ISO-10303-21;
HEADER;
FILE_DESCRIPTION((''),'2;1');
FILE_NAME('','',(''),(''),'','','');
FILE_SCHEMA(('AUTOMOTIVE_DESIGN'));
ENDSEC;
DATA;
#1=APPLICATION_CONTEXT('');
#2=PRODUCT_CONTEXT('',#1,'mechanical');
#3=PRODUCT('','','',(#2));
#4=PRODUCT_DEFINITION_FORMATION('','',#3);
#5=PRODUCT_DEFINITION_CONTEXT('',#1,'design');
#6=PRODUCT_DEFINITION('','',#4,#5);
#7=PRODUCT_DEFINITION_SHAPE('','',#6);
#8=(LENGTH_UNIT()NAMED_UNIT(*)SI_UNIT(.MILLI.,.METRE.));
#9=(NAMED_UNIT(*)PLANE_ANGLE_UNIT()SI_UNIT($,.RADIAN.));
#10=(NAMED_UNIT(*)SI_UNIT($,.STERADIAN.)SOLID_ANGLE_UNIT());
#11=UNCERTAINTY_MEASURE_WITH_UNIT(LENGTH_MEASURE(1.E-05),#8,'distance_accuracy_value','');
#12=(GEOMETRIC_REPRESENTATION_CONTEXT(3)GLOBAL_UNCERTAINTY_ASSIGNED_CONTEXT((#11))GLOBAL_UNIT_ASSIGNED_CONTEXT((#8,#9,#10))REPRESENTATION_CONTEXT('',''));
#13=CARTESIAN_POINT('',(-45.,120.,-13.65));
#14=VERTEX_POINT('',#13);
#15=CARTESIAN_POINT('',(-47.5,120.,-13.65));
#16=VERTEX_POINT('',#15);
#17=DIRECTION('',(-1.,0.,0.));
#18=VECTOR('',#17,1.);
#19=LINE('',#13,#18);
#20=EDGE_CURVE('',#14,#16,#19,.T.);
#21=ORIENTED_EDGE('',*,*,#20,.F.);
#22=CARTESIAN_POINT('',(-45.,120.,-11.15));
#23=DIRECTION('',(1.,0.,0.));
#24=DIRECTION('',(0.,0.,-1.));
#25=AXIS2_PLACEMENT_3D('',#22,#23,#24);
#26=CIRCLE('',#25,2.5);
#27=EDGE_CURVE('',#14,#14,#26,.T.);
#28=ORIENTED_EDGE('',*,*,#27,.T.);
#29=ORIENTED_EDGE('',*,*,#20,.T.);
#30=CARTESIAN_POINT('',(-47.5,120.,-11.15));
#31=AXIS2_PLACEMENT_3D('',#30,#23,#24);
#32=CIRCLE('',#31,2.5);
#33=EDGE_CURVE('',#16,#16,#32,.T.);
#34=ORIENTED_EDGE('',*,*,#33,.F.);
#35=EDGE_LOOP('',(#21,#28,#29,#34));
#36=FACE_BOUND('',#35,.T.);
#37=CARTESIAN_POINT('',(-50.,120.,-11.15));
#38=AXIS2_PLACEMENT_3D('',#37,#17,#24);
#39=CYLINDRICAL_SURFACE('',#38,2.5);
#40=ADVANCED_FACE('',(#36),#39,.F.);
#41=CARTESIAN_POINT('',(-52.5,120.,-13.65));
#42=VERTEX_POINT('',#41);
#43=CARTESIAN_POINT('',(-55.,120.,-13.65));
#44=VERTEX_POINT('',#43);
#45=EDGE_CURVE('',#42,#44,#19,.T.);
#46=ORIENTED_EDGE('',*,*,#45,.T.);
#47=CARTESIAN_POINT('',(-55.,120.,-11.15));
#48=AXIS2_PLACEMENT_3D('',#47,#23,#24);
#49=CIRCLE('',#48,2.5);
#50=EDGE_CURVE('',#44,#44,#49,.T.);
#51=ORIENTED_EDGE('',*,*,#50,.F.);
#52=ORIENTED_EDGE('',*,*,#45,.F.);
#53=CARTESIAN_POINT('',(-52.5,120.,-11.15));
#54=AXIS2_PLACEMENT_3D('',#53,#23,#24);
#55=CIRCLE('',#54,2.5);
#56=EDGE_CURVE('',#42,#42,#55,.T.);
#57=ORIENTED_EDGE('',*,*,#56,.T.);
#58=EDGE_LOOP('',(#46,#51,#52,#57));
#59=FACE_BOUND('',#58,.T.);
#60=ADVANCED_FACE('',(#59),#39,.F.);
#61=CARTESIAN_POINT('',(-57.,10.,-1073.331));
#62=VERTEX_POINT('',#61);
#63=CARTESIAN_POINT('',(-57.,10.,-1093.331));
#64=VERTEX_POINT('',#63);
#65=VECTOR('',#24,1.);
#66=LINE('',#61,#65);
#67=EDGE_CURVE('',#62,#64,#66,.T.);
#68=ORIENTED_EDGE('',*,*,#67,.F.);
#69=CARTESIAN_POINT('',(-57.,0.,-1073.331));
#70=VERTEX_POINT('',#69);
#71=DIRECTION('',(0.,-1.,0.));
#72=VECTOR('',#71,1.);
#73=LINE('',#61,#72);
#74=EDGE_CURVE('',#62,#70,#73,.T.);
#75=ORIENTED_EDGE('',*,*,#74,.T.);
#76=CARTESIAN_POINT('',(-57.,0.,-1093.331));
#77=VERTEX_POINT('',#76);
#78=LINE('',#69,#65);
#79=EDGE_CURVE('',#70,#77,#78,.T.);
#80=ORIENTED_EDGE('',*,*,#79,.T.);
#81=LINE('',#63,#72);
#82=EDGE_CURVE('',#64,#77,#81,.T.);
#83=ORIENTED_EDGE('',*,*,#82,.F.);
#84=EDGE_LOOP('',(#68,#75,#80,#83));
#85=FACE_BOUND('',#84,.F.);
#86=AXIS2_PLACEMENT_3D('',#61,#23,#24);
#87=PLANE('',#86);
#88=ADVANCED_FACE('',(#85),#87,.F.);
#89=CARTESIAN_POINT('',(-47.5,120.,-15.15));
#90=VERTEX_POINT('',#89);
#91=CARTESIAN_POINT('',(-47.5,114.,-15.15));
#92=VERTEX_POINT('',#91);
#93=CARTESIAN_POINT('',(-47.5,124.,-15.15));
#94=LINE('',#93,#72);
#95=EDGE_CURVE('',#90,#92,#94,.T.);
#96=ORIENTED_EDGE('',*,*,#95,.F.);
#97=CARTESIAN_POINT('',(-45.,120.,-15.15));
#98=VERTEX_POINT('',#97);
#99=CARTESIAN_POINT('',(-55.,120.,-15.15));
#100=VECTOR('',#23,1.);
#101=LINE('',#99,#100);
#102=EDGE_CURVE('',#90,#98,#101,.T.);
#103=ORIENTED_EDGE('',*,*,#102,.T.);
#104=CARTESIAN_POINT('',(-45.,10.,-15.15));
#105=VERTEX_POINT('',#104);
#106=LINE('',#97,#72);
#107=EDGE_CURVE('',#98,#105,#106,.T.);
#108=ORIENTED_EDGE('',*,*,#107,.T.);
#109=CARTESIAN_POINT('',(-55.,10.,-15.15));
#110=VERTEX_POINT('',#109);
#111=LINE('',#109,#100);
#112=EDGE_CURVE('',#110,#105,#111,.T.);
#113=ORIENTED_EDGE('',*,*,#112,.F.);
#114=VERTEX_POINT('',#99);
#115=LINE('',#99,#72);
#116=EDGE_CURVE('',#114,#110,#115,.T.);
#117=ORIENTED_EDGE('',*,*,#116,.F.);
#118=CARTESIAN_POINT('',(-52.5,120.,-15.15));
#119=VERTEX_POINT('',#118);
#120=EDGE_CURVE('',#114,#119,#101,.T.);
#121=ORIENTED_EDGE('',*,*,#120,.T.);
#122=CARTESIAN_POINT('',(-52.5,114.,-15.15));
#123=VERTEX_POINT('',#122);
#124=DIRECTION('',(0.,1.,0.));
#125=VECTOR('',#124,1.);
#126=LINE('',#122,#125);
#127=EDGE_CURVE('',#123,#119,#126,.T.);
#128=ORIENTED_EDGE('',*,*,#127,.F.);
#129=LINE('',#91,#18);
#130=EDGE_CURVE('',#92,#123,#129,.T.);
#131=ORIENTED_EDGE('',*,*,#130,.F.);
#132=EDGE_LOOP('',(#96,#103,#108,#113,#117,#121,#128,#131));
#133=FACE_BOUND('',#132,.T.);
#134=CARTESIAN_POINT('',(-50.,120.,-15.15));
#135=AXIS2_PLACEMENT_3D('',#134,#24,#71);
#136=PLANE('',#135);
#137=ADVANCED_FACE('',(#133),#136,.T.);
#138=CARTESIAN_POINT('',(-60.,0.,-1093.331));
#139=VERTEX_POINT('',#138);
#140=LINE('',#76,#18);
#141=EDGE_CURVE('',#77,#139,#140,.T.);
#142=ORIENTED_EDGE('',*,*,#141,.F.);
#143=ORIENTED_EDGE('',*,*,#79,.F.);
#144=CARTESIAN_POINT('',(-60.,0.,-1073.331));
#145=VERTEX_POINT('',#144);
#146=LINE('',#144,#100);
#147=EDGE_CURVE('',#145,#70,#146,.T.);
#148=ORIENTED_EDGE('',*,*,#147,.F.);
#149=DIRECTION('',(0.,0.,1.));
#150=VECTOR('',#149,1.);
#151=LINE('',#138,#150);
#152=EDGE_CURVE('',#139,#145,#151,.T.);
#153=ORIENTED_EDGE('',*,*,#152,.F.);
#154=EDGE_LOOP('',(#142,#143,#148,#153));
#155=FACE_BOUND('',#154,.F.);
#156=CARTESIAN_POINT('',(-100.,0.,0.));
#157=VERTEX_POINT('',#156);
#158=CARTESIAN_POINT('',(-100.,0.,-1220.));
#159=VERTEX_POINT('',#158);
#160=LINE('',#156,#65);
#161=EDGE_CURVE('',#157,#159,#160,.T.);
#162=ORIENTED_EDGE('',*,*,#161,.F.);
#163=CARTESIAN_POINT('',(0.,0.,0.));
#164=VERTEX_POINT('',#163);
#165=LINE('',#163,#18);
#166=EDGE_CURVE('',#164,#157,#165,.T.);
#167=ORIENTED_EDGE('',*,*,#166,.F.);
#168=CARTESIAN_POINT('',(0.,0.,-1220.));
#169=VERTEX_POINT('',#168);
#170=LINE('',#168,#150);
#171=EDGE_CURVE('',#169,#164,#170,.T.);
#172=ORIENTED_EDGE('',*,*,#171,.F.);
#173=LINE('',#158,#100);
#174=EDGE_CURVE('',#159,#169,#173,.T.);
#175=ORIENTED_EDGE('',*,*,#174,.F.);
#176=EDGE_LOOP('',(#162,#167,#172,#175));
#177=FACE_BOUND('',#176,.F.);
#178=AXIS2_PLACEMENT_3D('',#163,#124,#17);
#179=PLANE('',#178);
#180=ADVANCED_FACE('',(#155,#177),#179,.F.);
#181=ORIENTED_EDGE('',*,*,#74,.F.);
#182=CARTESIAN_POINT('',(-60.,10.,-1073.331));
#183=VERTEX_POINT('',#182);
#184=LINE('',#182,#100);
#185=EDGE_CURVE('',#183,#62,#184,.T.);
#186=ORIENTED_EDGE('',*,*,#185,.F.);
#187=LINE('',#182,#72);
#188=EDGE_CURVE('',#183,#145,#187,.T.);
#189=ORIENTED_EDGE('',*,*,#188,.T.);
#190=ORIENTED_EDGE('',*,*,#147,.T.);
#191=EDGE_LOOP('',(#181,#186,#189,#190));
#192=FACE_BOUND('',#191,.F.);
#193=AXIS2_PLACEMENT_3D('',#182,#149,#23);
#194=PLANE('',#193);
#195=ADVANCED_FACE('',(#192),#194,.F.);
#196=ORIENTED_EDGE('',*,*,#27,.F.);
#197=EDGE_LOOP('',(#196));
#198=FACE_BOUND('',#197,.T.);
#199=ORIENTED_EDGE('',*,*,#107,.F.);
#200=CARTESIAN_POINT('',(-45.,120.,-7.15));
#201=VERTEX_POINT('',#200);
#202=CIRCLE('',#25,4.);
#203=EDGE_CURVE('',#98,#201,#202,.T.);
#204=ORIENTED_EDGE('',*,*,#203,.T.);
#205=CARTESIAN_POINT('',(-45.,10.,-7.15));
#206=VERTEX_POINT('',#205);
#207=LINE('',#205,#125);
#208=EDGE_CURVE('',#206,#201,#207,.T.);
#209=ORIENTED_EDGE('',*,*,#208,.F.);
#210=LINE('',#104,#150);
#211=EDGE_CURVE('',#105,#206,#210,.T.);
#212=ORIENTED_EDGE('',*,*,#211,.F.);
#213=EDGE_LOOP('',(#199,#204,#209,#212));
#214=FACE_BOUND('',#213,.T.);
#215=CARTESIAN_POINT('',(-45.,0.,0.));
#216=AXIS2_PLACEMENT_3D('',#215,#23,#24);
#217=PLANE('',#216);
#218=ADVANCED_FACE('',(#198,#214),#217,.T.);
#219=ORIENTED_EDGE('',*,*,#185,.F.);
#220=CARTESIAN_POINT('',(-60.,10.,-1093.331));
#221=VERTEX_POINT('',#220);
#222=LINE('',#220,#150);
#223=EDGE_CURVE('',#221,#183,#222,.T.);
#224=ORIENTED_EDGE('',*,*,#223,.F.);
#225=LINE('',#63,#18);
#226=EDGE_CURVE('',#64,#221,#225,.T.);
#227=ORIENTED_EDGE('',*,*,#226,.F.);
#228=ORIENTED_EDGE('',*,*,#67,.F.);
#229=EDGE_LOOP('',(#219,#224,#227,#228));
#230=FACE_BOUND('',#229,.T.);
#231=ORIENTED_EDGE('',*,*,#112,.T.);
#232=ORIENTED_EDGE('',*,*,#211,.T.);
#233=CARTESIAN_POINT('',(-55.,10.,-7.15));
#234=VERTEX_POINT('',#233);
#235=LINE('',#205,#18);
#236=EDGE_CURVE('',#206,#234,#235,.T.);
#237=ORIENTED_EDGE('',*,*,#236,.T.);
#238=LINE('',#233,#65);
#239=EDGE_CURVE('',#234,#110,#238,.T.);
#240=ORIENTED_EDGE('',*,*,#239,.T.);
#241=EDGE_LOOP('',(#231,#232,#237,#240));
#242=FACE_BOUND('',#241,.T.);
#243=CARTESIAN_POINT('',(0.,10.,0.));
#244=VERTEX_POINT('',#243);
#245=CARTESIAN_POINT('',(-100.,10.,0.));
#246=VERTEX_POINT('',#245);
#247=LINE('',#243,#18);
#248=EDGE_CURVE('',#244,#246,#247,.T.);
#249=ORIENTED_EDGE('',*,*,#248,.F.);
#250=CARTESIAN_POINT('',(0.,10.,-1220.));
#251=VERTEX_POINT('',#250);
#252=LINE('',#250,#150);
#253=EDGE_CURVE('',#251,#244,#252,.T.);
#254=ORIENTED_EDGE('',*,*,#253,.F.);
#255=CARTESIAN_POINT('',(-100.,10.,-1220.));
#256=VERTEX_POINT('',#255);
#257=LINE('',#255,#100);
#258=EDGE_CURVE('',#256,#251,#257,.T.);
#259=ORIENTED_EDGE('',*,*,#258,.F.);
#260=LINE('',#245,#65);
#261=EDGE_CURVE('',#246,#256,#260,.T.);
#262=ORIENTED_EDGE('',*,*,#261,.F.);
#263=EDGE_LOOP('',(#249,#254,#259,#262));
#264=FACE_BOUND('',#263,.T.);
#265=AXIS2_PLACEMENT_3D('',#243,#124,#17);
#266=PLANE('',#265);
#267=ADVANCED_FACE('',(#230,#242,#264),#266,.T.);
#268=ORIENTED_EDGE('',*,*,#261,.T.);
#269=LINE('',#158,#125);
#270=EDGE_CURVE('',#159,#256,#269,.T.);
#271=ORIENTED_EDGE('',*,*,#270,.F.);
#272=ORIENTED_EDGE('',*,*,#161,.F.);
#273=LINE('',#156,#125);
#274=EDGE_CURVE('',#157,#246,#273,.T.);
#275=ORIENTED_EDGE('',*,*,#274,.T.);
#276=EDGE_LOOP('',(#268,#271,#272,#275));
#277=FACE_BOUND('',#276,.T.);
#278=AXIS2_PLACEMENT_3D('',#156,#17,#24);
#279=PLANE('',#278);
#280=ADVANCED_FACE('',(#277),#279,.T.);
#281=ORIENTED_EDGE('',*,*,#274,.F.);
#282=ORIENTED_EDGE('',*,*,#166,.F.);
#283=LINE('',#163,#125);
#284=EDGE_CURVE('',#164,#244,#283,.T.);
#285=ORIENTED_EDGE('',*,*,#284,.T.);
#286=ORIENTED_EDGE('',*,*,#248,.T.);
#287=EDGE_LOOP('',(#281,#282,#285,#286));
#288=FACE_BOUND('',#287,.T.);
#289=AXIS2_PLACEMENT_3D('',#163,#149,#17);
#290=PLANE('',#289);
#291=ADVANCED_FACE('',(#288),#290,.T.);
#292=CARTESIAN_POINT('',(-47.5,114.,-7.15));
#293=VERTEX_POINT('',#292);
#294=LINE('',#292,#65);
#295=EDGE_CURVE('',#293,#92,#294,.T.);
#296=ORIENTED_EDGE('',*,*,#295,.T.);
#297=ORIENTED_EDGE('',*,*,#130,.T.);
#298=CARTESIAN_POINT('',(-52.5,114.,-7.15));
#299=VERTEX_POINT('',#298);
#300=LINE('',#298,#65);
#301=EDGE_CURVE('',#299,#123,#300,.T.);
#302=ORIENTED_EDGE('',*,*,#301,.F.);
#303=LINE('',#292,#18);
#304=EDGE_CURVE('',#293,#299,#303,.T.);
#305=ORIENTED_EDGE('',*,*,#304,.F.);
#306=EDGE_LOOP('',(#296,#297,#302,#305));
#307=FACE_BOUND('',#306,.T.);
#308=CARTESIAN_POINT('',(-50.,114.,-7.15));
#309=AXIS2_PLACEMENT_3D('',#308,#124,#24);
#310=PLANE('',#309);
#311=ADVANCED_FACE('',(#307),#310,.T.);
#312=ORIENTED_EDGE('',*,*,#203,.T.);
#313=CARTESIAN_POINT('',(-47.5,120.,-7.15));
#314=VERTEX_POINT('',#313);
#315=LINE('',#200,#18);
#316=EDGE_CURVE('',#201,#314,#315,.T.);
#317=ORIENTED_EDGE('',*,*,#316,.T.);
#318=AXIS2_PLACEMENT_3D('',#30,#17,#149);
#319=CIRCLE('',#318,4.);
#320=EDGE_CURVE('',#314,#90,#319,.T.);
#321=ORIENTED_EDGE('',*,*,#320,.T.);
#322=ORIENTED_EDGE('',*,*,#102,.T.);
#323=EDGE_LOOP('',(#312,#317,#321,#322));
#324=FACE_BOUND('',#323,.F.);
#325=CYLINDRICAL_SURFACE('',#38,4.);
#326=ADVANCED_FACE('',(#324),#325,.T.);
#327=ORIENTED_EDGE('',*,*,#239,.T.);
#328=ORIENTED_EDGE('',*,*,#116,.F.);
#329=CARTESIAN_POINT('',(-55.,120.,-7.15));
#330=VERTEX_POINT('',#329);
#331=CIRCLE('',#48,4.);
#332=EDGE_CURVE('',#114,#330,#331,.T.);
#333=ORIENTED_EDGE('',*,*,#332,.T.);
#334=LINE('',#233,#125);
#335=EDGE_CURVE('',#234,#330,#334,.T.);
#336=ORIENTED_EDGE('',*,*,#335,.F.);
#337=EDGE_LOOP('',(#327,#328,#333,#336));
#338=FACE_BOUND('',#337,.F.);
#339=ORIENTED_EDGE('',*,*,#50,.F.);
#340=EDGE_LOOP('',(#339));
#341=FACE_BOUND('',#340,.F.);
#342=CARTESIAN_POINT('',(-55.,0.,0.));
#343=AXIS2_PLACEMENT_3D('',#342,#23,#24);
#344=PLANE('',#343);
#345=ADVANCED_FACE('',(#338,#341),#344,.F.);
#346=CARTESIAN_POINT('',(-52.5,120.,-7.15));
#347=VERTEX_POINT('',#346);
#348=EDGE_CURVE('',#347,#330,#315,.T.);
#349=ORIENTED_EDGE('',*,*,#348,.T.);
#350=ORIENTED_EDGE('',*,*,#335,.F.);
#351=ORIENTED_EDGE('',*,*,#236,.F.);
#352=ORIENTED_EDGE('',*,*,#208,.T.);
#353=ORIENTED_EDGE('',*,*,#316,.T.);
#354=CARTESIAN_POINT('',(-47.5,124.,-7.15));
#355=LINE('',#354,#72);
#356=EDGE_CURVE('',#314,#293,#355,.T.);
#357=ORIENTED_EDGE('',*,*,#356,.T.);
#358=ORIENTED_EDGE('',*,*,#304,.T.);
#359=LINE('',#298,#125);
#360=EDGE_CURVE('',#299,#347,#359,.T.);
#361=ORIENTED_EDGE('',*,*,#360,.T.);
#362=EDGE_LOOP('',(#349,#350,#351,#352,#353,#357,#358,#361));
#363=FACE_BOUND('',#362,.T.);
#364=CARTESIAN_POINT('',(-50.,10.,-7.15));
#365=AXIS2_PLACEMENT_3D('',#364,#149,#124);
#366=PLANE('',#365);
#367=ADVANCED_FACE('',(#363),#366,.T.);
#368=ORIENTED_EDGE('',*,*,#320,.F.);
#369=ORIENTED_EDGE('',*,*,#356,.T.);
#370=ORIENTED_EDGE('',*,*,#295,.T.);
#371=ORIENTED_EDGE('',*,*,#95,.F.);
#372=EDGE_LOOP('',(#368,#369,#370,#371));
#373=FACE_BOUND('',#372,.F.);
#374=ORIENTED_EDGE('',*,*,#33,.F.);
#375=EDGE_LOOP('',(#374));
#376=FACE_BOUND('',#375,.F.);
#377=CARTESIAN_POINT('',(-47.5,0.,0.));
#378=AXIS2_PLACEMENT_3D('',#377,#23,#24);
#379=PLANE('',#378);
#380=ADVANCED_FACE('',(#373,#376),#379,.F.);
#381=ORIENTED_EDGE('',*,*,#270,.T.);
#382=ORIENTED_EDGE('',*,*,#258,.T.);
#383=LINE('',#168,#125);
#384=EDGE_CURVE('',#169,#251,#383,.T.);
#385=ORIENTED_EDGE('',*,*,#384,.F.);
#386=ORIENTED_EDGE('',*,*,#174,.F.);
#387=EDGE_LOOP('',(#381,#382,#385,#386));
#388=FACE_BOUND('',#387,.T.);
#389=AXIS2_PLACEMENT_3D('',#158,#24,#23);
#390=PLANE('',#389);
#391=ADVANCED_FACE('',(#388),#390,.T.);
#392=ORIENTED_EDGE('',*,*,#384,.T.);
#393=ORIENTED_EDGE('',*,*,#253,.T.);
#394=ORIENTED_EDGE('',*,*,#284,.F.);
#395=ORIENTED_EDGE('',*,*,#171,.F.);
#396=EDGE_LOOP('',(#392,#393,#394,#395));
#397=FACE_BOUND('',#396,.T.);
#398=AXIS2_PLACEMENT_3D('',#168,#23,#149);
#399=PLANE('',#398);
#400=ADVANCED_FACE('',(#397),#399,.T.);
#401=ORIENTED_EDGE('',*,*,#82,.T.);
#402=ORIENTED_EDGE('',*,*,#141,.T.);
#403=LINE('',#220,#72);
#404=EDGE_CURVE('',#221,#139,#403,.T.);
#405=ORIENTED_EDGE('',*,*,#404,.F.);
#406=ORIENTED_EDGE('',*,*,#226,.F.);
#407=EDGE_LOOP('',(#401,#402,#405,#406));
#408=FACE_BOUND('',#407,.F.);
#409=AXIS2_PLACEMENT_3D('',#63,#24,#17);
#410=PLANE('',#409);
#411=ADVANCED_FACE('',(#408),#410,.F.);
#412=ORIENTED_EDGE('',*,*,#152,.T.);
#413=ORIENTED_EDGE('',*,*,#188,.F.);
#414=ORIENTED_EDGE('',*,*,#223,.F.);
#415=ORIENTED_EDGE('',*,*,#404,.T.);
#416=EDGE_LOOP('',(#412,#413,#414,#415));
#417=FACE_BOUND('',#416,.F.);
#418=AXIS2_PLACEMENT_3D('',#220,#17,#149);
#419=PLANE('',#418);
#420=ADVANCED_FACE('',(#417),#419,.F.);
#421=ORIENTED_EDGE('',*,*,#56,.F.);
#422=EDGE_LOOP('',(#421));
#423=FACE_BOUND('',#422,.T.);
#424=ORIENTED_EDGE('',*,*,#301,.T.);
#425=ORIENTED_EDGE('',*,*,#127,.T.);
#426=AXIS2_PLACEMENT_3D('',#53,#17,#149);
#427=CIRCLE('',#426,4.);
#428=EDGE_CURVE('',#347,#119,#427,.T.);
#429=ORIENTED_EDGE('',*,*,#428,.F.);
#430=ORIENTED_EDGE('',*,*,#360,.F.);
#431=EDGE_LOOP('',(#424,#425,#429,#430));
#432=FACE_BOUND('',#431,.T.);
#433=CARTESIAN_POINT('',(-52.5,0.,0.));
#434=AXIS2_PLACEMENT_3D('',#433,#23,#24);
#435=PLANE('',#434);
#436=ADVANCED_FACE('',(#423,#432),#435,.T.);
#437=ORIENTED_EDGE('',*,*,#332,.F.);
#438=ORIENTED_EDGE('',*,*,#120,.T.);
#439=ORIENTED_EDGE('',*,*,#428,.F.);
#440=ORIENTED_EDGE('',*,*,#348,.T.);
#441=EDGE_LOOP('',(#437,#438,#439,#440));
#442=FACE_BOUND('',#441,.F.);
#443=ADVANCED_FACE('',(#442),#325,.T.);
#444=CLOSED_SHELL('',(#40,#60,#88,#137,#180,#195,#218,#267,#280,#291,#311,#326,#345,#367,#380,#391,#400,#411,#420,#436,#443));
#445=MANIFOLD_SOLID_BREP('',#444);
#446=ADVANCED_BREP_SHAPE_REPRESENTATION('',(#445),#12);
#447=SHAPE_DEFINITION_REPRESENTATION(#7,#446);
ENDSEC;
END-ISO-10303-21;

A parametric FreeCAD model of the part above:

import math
import FreeCAD as App
import Part
import Sketcher
Q = App.Units.Quantity


def add_polygon(sketch, points):
    """Adds a closed chain of lines whose ends are joined by coincident constraints."""
    first, n = sketch.GeometryCount, len(points)
    for a, b in zip(points, points[1:] + points[:1]):
        sketch.addGeometry(Part.LineSegment(App.Vector(*a, 0), App.Vector(*b, 0)), False)
    for i in range(n):
        sketch.addConstraint(Sketcher.Constraint("Coincident", first + i, 2, first + (i + 1) % n, 1))

doc = App.newDocument("Part")
body = doc.addObject("PartDesign::Body", "Body")

# Sketch on XZ plane
sketch1 = doc.addObject("Sketcher::SketchObject", "Sketch")
body.addObject(sketch1)
sketch1.AttachmentSupport = (doc.XZ_Plane, [""])
sketch1.MapMode = "FlatFace"
add_polygon(sketch1, [(-100, 0), (0, 0), (0, -1220), (-100, -1220)])  # lines 0-3
sketch1.addConstraint(Sketcher.Constraint("Horizontal", 0))
sketch1.addConstraint(Sketcher.Constraint("Vertical", 1))
sketch1.addConstraint(Sketcher.Constraint("Horizontal", 2))
sketch1.addConstraint(Sketcher.Constraint("Vertical", 3))
sketch1.addConstraint(Sketcher.Constraint("Coincident", 0, 2, -1, 1))
sketch1.addConstraint(Sketcher.Constraint("DistanceX", 0, 1, 0, 2, Q("100 mm")))
sketch1.addConstraint(Sketcher.Constraint("DistanceY", 1, 2, 1, 1, Q("1220 mm")))
pad1 = doc.addObject("PartDesign::Pad", "Pad")
body.addObject(pad1)
pad1.Profile = sketch1
pad1.Length = 10
pad1.Reversed = True

# Sketch on YZ plane
sketch2 = doc.addObject("Sketcher::SketchObject", "Sketch001")
body.addObject(sketch2)
sketch2.AttachmentSupport = (doc.YZ_Plane, [""])
sketch2.MapMode = "FlatFace"
sketch2.AttachmentOffset = App.Placement(App.Vector(0, 0, -50), App.Rotation())
sketch2.addGeometry(Part.LineSegment(App.Vector(10, -7.2, 0), App.Vector(10, -15.2, 0)), False)
sketch2.addGeometry(Part.LineSegment(App.Vector(10, -15.2, 0), App.Vector(120, -15.2, 0)), False)
sketch2.addGeometry(Part.ArcOfCircle(Part.Circle(App.Vector(120, -11.2, 0), App.Vector(0, 0, 1), 4), math.radians(-90), math.radians(90)), False)
sketch2.addGeometry(Part.LineSegment(App.Vector(120, -7.2, 0), App.Vector(10, -7.2, 0)), False)
sketch2.addGeometry(Part.Circle(App.Vector(120, -11.2, 0), App.Vector(0, 0, 1), 2.5), False)
sketch2.addConstraint(Sketcher.Constraint("Coincident", 0, 2, 1, 1))
sketch2.addConstraint(Sketcher.Constraint("Tangent", 1, 2, 2, 1))
sketch2.addConstraint(Sketcher.Constraint("Tangent", 2, 2, 3, 1))
sketch2.addConstraint(Sketcher.Constraint("Coincident", 3, 2, 0, 1))
sketch2.addConstraint(Sketcher.Constraint("Vertical", 0))
sketch2.addConstraint(Sketcher.Constraint("Horizontal", 1))
sketch2.addConstraint(Sketcher.Constraint("Horizontal", 3))
sketch2.addConstraint(Sketcher.Constraint("Coincident", 4, 3, 2, 3))
sketch2.addConstraint(Sketcher.Constraint("Diameter", 4, Q("5 mm")))
sketch2.addConstraint(Sketcher.Constraint("Radius", 2, Q("4 mm")))
sketch2.addConstraint(Sketcher.Constraint("DistanceX", 1, 1, 1, 2, Q("110 mm")))
sketch2.addConstraint(Sketcher.Constraint("DistanceY", 2, 3, -1, 1, Q("11.15 mm")))
sketch2.addConstraint(Sketcher.Constraint("DistanceX", -1, 1, 2, 3, Q("120 mm")))
pad2 = doc.addObject("PartDesign::Pad", "Pad001")
body.addObject(pad2)
pad2.Profile = sketch2
pad2.Length = 10
pad2.Midplane = True

# Sketch on YZ plane
sketch3 = doc.addObject("Sketcher::SketchObject", "Sketch002")
body.addObject(sketch3)
sketch3.AttachmentSupport = (doc.YZ_Plane, [""])
sketch3.MapMode = "FlatFace"
sketch3.AttachmentOffset = App.Placement(App.Vector(0, 0, -50), App.Rotation())
add_polygon(sketch3, [(114, -15.2), (124, -15.2), (124, -7.2), (114, -7.2)])  # lines 0-3
sketch3.addGeometry(Part.Circle(App.Vector(120, -11.2, 0), App.Vector(0, 0, 1), 2.5), False)  # 4
sketch3.addConstraint(Sketcher.Constraint("Horizontal", 0))
sketch3.addConstraint(Sketcher.Constraint("Vertical", 1))
sketch3.addConstraint(Sketcher.Constraint("Horizontal", 2))
sketch3.addConstraint(Sketcher.Constraint("Vertical", 3))
sketch3.addConstraint(Sketcher.Constraint("DistanceX", 0, 1, 0, 2, Q("10 mm")))
sketch3.addConstraint(Sketcher.Constraint("Diameter", 4, Q("5 mm")))
sketch3.addConstraint(Sketcher.Constraint("DistanceX", 4, 3, 0, 2, Q("4 mm")))
sketch3.addConstraint(Sketcher.Constraint("DistanceY", 0, 2, 4, 3, Q("4 mm")))
sketch3.addConstraint(Sketcher.Constraint("DistanceY", 4, 3, 1, 2, Q("4 mm")))
sketch3.addConstraint(Sketcher.Constraint("DistanceX", -1, 1, 4, 3, Q("120 mm")))
sketch3.addConstraint(Sketcher.Constraint("DistanceY", 4, 3, -1, 1, Q("11.15 mm")))
pocket1 = doc.addObject("PartDesign::Pocket", "Pocket")
body.addObject(pocket1)
pocket1.Profile = sketch3
pocket1.Length = 5
pocket1.Midplane = True

# Sketch on XZ plane
sketch4 = doc.addObject("Sketcher::SketchObject", "Sketch003")
body.addObject(sketch4)
sketch4.AttachmentSupport = (doc.XZ_Plane, [""])
sketch4.MapMode = "FlatFace"
sketch4.AttachmentOffset = App.Placement(App.Vector(0, 0, -10), App.Rotation())
add_polygon(sketch4, [(-60, -1093.3), (-60, -1073.3), (-57, -1073.3), (-57, -1093.3)])  # lines 0-3
sketch4.addConstraint(Sketcher.Constraint("Vertical", 0))
sketch4.addConstraint(Sketcher.Constraint("Horizontal", 1))
sketch4.addConstraint(Sketcher.Constraint("Vertical", 2))
sketch4.addConstraint(Sketcher.Constraint("Horizontal", 3))
sketch4.addConstraint(Sketcher.Constraint("DistanceX", 1, 1, 1, 2, Q("3 mm")))
sketch4.addConstraint(Sketcher.Constraint("DistanceY", 0, 1, 0, 2, Q("20 mm")))
sketch4.addConstraint(Sketcher.Constraint("DistanceX", 0, 2, -1, 1, Q("60 mm")))
sketch4.addConstraint(Sketcher.Constraint("DistanceY", 0, 2, -1, 1, Q("1073.331 mm")))
pocket2 = doc.addObject("PartDesign::Pocket", "Pocket001")
body.addObject(pocket2)
pocket2.Profile = sketch4
pocket2.Length = 10
pocket2.Reversed = True

doc.recompute()
